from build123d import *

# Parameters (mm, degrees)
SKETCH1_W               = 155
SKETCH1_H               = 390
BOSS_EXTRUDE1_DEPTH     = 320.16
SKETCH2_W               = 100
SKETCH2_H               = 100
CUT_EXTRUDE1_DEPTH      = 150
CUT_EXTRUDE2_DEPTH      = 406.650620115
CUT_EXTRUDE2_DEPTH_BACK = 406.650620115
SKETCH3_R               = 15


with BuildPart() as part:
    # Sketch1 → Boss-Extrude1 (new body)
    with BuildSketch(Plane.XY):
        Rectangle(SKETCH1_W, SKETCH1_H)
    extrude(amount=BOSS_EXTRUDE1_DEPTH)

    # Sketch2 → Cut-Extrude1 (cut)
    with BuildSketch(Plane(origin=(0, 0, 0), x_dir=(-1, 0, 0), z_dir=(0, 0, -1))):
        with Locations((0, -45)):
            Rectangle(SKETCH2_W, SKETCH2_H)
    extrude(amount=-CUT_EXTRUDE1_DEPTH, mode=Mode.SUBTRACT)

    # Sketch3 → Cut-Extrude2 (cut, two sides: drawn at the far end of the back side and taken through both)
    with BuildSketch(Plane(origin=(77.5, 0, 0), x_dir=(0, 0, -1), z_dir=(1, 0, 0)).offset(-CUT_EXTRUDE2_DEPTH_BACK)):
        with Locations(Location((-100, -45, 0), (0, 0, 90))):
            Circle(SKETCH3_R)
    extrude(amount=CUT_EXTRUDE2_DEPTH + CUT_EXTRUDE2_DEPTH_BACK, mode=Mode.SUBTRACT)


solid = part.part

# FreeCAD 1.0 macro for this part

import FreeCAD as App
import Part
import Sketcher

V = App.Vector
Q = App.Units.Quantity

doc = App.newDocument("Part")
body = doc.addObject("PartDesign::Body", "Body")

# Sketch on XY plane
sketch1 = body.newObject("Sketcher::SketchObject", "Sketch")
sketch1.AttachmentSupport = (doc.getObject("XY_Plane"), [""])
sketch1.MapMode = "FlatFace"
sketch1.addGeometry([
    Part.LineSegment(V(-78, 195, 0), V(-78, -195, 0)),
    Part.LineSegment(V(-78, -195, 0), V(78, -195, 0)),
    Part.LineSegment(V(78, -195, 0), V(78, 195, 0)),
    Part.LineSegment(V(78, 195, 0), V(-78, 195, 0)),
], False)
sketch1.addConstraint([
    Sketcher.Constraint("Coincident", 0, 2, 1, 1),
    Sketcher.Constraint("Coincident", 1, 2, 2, 1),
    Sketcher.Constraint("Coincident", 2, 2, 3, 1),
    Sketcher.Constraint("Coincident", 3, 2, 0, 1),
    Sketcher.Constraint("Vertical", 0),
    Sketcher.Constraint("Horizontal", 1),
    Sketcher.Constraint("Vertical", 2),
    Sketcher.Constraint("Horizontal", 3),
    Sketcher.Constraint("Symmetric", 0, 2, 2, 2, -1, 1),
    Sketcher.Constraint("DistanceX", 1, 1, 1, 2, Q("155 mm")),
    Sketcher.Constraint("DistanceY", 0, 2, 0, 1, Q("390 mm")),
])
pad1 = body.newObject("PartDesign::Pad", "Pad")
pad1.Profile = sketch1
pad1.Length = 320.16

# Sketch on XY plane
sketch2 = body.newObject("Sketcher::SketchObject", "Sketch001")
sketch2.AttachmentSupport = (doc.getObject("XY_Plane"), [""])
sketch2.MapMode = "FlatFace"
sketch2.addGeometry([
    Part.LineSegment(V(50, 5, 0), V(50, -95, 0)),
    Part.LineSegment(V(50, -95, 0), V(-50, -95, 0)),
    Part.LineSegment(V(-50, -95, 0), V(-50, 5, 0)),
    Part.LineSegment(V(-50, 5, 0), V(50, 5, 0)),
], False)
sketch2.addConstraint([
    Sketcher.Constraint("Coincident", 0, 2, 1, 1),
    Sketcher.Constraint("Coincident", 1, 2, 2, 1),
    Sketcher.Constraint("Coincident", 2, 2, 3, 1),
    Sketcher.Constraint("Coincident", 3, 2, 0, 1),
    Sketcher.Constraint("Vertical", 0),
    Sketcher.Constraint("Horizontal", 1),
    Sketcher.Constraint("Vertical", 2),
    Sketcher.Constraint("Horizontal", 3),
    Sketcher.Constraint("Equal", 3, 0),
    Sketcher.Constraint("DistanceX", 1, 2, 1, 1, Q("100 mm")),
    Sketcher.Constraint("DistanceX", -1, 1, 0, 2, Q("50 mm")),
    Sketcher.Constraint("DistanceY", 0, 2, -1, 1, Q("95 mm")),
])
pocket1 = body.newObject("PartDesign::Pocket", "Pocket")
pocket1.Profile = sketch2
pocket1.Length = 150
pocket1.Reversed = True

# Sketch on YZ plane
sketch3 = body.newObject("Sketcher::SketchObject", "Sketch002")
sketch3.AttachmentSupport = (doc.getObject("YZ_Plane"), [""])
sketch3.MapMode = "FlatFace"
sketch3.AttachmentOffset = App.Placement(V(0, 0, 77.5), App.Rotation())
sketch3.addGeometry(Part.Circle(V(-45, 100, 0), V(0, 0, 1), 15), False)
sketch3.addConstraint([
    Sketcher.Constraint("Diameter", 0, Q("30 mm")),
    Sketcher.Constraint("DistanceX", 0, 3, -1, 1, Q("45 mm")),
    Sketcher.Constraint("DistanceY", -1, 1, 0, 3, Q("100 mm")),
])
pocket2 = body.newObject("PartDesign::Pocket", "Pocket001")
pocket2.Profile = sketch3
pocket2.Type = "ThroughAll"
pocket2.Midplane = True

doc.recompute()
